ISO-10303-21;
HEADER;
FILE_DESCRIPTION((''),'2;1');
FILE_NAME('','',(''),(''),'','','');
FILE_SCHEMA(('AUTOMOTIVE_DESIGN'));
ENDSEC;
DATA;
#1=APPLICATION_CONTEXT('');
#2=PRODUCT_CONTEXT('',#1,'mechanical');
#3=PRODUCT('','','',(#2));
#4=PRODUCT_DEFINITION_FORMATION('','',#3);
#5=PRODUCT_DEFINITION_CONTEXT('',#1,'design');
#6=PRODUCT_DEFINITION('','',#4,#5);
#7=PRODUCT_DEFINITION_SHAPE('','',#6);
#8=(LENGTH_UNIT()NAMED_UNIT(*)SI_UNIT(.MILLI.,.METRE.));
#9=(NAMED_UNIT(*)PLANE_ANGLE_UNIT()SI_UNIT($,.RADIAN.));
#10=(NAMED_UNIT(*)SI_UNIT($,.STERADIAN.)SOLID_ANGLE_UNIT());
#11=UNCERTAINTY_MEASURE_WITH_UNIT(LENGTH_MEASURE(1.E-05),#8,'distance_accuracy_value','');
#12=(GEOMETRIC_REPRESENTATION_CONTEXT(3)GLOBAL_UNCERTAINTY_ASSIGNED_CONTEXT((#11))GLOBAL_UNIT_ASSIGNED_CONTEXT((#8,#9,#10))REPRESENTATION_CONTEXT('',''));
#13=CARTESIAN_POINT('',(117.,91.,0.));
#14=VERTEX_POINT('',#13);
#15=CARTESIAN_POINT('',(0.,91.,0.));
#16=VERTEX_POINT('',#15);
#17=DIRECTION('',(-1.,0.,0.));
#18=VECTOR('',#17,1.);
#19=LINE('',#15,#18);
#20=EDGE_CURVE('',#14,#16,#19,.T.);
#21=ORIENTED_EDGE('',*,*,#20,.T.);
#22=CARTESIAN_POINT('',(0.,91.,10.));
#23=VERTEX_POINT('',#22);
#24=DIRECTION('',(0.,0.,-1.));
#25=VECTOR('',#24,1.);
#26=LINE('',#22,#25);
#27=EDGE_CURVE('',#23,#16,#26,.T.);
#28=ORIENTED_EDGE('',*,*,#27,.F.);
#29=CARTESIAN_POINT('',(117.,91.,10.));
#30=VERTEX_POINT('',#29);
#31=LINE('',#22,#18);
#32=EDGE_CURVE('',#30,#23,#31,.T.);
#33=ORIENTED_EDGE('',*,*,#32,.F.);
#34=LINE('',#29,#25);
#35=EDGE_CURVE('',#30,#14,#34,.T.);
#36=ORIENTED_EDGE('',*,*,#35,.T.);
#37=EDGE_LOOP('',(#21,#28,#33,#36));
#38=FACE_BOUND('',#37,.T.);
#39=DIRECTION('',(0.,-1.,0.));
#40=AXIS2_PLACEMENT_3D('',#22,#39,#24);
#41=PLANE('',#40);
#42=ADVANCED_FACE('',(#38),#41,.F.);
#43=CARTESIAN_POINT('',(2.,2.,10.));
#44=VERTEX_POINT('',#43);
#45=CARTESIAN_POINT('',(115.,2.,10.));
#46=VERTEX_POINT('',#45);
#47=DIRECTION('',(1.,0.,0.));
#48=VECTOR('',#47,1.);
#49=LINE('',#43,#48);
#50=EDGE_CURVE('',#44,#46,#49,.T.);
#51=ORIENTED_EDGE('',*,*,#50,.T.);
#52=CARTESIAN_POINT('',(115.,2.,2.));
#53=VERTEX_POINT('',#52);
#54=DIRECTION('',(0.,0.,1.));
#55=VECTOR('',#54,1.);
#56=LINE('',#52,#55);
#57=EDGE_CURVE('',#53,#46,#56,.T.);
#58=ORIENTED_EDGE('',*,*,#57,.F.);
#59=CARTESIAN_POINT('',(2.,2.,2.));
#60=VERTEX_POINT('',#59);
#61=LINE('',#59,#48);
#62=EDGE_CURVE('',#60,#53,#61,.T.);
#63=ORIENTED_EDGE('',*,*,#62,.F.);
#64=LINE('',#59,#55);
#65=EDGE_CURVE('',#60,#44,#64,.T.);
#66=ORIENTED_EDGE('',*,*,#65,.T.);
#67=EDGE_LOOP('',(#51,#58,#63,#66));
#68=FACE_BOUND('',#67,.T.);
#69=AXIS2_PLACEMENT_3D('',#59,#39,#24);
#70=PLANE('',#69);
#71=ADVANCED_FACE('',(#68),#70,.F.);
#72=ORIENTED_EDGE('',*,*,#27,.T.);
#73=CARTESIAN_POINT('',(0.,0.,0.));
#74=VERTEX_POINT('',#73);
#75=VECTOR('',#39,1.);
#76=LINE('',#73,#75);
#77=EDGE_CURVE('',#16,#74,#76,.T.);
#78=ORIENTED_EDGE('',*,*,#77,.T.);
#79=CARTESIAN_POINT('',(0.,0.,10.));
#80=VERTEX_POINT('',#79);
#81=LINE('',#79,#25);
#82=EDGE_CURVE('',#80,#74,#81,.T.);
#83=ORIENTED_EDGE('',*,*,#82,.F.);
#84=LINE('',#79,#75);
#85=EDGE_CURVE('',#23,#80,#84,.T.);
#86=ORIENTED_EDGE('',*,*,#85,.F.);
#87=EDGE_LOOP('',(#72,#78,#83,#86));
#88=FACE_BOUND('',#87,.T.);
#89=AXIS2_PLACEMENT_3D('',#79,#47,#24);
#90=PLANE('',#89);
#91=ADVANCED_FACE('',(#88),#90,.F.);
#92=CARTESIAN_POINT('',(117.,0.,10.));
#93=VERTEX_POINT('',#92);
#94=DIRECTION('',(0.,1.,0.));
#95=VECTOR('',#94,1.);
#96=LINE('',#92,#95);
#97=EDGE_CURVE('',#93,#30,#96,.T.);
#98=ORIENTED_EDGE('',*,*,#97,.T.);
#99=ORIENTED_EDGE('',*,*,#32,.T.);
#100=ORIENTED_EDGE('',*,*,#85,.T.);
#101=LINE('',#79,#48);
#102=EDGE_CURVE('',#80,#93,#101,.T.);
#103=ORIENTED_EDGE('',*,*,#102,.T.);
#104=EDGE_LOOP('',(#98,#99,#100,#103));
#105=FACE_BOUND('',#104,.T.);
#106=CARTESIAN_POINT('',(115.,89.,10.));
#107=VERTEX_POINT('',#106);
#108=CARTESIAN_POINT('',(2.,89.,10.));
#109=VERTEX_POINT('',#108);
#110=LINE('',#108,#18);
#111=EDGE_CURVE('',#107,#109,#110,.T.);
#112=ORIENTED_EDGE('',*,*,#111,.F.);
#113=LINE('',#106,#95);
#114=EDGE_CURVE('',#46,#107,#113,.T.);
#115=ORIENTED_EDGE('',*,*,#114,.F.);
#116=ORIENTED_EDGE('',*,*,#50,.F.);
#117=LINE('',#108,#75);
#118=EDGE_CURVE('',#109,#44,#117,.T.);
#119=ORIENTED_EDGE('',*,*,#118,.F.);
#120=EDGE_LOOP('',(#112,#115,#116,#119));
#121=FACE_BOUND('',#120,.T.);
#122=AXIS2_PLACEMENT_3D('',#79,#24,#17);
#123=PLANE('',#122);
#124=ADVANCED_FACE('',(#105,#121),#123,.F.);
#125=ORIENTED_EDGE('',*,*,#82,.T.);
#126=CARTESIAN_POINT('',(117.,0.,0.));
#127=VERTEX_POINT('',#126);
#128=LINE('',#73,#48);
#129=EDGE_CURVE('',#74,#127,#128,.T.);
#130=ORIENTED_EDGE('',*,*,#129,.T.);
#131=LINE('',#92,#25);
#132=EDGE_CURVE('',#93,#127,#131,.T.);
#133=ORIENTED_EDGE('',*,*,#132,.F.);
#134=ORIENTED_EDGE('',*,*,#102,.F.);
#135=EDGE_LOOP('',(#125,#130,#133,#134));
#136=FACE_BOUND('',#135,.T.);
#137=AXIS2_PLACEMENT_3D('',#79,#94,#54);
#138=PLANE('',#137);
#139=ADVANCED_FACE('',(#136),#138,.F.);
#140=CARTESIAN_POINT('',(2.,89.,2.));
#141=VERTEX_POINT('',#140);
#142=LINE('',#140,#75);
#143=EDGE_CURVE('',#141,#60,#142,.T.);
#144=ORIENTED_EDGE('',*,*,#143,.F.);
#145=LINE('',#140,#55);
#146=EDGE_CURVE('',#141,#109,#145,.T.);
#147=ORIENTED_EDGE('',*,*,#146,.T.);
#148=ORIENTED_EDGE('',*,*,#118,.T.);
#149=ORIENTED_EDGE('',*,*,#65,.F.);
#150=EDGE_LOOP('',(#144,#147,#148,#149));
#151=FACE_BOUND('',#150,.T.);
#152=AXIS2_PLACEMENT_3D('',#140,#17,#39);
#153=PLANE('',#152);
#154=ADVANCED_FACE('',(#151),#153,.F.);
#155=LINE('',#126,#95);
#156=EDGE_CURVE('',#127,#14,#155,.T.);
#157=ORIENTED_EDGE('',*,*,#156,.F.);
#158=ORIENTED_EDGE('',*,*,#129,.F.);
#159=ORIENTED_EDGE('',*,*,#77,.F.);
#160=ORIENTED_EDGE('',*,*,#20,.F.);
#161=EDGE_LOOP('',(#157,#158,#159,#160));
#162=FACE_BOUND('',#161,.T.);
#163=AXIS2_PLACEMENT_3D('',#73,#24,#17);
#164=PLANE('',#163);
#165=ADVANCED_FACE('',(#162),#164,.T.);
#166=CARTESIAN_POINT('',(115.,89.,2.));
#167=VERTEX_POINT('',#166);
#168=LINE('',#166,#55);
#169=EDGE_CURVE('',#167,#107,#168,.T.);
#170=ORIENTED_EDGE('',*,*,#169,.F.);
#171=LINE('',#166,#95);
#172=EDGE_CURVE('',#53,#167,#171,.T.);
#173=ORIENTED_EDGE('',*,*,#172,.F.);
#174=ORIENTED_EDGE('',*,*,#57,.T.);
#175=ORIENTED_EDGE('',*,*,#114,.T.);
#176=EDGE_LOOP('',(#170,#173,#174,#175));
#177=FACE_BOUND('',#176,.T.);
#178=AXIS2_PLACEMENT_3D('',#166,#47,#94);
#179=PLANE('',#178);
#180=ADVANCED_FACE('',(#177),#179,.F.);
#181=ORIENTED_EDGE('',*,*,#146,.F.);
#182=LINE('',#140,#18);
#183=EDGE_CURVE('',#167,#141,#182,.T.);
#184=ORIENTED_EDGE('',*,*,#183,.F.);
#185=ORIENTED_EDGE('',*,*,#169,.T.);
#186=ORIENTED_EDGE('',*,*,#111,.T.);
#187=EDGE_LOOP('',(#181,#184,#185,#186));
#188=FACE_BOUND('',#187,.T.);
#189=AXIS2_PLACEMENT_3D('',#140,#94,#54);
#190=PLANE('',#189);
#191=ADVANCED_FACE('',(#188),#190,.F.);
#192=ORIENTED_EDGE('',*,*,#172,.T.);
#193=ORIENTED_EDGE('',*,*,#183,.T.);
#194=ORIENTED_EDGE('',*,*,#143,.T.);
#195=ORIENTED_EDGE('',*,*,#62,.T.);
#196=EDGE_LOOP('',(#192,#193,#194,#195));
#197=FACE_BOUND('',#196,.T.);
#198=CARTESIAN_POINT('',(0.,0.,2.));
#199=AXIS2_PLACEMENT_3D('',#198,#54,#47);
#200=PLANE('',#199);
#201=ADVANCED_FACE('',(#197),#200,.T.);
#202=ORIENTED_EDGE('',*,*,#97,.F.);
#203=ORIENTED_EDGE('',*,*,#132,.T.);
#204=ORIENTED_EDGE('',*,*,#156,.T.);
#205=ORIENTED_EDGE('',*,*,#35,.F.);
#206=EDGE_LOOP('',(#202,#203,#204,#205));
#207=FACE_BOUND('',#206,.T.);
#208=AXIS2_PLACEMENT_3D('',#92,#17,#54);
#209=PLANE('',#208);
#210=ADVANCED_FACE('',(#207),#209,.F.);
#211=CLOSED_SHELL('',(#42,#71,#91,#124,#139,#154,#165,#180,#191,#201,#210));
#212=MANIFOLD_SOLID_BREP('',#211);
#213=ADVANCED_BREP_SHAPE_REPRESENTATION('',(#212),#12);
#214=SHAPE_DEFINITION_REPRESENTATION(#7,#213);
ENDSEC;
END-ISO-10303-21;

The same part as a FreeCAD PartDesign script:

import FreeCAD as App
import Part
import Sketcher
Q = App.Units.Quantity


def add_polygon(sketch, points):
    """Adds a closed chain of lines whose ends are joined by coincident constraints."""
    first, n = sketch.GeometryCount, len(points)
    for a, b in zip(points, points[1:] + points[:1]):
        sketch.addGeometry(Part.LineSegment(App.Vector(*a, 0), App.Vector(*b, 0)), False)
    for i in range(n):
        sketch.addConstraint(Sketcher.Constraint("Coincident", first + i, 2, first + (i + 1) % n, 1))

doc = App.newDocument("Part")
body = doc.addObject("PartDesign::Body", "Body")

# Sketch on XY plane
sketch1 = body.newObject("Sketcher::SketchObject", "Sketch")
sketch1.AttachmentSupport = (doc.getObject("XY_Plane"), [""])
sketch1.MapMode = "FlatFace"
add_polygon(sketch1, [(0, 91), (0, 0), (117, 0), (117, 91)])  # lines 0-3
sketch1.addConstraint([
    Sketcher.Constraint("Vertical", 0),
    Sketcher.Constraint("Horizontal", 1),
    Sketcher.Constraint("Vertical", 2),
    Sketcher.Constraint("Horizontal", 3),
    Sketcher.Constraint("Coincident", 0, 2, -1, 1),
    Sketcher.Constraint("DistanceX", 1, 1, 1, 2, Q("117 mm")),
    Sketcher.Constraint("DistanceY", 0, 2, 0, 1, Q("91 mm")),
])
pad1 = body.newObject("PartDesign::Pad", "Pad")
pad1.Profile = sketch1
pad1.Length = 10

# Sketch on XY plane
sketch2 = body.newObject("Sketcher::SketchObject", "Sketch001")
sketch2.AttachmentSupport = (doc.getObject("XY_Plane"), [""])
sketch2.MapMode = "FlatFace"
sketch2.AttachmentOffset = App.Placement(App.Vector(0, 0, 10), App.Rotation())
add_polygon(sketch2, [(2, 89), (2, 2), (115, 2), (115, 89)])  # lines 0-3
sketch2.addConstraint([
    Sketcher.Constraint("Vertical", 0),
    Sketcher.Constraint("Horizontal", 1),
    Sketcher.Constraint("Vertical", 2),
    Sketcher.Constraint("Horizontal", 3),
    Sketcher.Constraint("DistanceX", 1, 1, 1, 2, Q("113 mm")),
    Sketcher.Constraint("DistanceY", 0, 2, 0, 1, Q("87 mm")),
    Sketcher.Constraint("DistanceX", -1, 1, 0, 2, Q("2 mm")),
    Sketcher.Constraint("DistanceY", -1, 1, 0, 2, Q("2 mm")),
])
pocket1 = body.newObject("PartDesign::Pocket", "Pocket")
pocket1.Profile = sketch2
pocket1.Length = 8

doc.recompute()
